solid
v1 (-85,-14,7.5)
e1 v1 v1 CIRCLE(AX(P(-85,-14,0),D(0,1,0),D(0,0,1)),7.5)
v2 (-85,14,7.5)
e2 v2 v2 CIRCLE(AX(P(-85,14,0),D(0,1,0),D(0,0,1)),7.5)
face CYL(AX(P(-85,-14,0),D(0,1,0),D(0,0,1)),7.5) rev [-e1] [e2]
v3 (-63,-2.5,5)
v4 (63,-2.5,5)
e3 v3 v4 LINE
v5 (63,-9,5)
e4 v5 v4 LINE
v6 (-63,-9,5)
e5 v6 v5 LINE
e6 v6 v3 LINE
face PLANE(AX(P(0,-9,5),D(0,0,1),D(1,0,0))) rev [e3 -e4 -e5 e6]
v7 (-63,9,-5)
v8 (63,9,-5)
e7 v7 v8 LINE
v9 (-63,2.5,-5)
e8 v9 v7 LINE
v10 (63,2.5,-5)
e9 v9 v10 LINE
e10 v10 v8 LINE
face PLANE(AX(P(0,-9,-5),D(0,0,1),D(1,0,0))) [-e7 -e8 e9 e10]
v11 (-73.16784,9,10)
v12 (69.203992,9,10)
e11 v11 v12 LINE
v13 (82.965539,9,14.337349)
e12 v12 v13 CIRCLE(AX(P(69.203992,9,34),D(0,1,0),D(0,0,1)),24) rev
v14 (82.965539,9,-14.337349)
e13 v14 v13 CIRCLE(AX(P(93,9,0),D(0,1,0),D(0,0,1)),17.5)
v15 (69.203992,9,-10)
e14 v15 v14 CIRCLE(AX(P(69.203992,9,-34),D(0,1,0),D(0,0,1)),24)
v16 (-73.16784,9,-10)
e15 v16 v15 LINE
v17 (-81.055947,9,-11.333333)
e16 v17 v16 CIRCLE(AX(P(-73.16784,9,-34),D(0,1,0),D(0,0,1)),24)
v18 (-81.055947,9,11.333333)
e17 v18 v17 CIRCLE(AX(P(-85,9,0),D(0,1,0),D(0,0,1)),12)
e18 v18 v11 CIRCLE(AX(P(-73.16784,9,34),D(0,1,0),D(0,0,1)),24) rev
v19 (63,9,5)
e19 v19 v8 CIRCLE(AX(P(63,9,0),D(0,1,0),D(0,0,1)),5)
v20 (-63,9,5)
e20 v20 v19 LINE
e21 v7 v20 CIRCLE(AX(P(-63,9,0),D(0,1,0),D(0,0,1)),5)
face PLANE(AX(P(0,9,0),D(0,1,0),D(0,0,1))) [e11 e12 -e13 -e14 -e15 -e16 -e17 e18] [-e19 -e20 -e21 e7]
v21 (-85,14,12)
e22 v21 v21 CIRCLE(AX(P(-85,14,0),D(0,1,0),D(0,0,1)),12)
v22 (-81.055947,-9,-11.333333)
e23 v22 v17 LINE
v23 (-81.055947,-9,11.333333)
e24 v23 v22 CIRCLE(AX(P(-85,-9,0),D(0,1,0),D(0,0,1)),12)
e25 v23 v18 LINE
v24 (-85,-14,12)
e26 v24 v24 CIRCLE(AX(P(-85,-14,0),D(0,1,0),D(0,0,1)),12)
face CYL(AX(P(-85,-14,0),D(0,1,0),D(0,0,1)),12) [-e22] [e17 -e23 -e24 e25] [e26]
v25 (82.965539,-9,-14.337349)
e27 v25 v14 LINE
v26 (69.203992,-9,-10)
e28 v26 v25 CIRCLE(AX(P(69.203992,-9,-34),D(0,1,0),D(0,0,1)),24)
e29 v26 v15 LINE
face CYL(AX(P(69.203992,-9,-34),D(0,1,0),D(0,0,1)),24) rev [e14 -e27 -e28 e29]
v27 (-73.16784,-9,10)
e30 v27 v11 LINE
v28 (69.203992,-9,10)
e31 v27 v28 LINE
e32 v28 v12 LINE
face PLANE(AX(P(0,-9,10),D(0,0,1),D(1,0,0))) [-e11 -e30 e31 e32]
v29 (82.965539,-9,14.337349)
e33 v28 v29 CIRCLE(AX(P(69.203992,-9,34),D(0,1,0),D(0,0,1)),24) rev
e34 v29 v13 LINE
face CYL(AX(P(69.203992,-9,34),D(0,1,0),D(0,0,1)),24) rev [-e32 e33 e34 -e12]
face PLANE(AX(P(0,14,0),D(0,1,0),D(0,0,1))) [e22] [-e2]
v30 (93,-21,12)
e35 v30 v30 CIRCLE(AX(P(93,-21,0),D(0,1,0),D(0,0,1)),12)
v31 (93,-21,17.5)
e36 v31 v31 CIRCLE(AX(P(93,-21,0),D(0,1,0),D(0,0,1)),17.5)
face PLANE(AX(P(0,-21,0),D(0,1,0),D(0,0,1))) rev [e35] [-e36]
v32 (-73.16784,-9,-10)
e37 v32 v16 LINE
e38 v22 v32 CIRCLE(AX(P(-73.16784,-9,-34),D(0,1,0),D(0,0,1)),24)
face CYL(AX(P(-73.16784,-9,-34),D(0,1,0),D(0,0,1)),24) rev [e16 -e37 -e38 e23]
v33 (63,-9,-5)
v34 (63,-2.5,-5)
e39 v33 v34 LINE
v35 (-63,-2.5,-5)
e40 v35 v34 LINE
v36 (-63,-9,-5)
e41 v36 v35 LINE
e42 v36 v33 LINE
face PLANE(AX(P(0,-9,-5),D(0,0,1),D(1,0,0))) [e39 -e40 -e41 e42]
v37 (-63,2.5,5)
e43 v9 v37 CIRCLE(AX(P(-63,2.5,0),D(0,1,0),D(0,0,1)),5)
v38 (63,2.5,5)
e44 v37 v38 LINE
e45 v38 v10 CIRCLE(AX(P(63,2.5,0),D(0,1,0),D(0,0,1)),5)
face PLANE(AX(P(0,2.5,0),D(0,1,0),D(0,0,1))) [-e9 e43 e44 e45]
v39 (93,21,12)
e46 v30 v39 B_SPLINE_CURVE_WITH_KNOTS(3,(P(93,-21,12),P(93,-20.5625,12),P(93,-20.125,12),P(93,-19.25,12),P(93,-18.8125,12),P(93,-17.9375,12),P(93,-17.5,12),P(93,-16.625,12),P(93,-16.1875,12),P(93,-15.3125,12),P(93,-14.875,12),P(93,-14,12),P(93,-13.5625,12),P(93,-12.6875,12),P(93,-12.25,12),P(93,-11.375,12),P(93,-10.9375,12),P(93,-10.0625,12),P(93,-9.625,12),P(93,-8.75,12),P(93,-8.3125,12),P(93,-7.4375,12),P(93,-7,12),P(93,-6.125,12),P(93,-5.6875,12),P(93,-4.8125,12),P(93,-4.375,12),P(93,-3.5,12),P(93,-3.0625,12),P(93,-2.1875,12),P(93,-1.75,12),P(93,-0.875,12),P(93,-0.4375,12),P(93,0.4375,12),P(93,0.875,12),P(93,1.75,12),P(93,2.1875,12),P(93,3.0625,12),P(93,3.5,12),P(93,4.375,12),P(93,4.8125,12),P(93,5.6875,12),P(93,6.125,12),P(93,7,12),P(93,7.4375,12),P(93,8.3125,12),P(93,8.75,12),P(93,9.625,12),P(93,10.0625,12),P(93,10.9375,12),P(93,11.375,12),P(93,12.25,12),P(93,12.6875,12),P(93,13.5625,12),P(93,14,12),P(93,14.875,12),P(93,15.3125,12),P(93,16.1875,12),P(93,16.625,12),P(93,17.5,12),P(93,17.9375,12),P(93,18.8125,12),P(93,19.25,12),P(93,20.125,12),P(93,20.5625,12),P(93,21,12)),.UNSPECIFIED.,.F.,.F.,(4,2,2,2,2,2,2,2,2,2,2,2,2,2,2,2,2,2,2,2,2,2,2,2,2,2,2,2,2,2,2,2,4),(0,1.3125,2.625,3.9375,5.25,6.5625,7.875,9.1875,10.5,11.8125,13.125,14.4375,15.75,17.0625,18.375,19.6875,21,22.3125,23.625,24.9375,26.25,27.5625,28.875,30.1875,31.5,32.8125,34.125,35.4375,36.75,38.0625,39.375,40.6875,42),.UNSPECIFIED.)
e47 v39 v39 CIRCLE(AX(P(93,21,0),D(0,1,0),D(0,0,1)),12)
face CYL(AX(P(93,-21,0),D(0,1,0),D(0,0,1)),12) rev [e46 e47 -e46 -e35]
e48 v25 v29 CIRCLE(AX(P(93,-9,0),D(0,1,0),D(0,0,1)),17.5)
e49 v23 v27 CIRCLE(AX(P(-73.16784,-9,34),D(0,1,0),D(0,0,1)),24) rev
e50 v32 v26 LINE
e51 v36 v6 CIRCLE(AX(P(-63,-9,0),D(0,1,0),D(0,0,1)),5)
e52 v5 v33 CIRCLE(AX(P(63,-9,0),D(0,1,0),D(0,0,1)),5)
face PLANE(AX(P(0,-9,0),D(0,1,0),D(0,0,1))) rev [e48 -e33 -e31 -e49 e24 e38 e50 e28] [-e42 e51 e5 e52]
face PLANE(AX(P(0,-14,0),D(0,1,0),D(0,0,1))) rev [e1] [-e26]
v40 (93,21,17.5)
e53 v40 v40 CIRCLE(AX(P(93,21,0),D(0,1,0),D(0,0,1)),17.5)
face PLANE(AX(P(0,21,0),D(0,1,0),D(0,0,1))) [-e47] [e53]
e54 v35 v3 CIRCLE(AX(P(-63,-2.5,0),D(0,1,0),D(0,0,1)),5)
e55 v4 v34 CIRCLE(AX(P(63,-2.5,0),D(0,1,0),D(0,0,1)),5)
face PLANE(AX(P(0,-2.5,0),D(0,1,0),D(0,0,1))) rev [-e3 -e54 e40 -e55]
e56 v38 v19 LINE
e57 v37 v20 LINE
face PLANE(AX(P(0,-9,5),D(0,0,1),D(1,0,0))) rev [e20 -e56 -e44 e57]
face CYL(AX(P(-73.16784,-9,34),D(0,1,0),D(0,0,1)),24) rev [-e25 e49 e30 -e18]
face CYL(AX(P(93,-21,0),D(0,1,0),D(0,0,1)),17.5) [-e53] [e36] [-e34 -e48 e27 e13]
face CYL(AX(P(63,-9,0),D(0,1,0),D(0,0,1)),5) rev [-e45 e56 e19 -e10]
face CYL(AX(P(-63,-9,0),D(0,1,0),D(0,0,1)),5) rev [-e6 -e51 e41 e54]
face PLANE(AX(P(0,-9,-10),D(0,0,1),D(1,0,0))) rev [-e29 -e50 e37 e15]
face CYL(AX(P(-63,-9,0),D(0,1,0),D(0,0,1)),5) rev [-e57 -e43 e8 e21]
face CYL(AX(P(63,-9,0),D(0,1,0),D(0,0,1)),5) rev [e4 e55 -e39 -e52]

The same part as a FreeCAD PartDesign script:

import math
import FreeCAD as App
import Part
import Sketcher

V = App.Vector

doc = App.newDocument("Part")
params = doc.addObject("Spreadsheet::Sheet", "Params")
for row, (alias, value) in enumerate([
    ("sketch1_diameter", "35 mm"),
    ("sketch1_diameter2", "24 mm"),
    ("pad1_length", "21 mm"),
    ("pad1_length2", "21 mm"),
    ("sketch2_radius", "24 mm"),
    ("sketch2_radius2", "12 mm"),
    ("sketch2_radius3", "5 mm"),
    ("sketch2_radius4", "17.5 mm"),
    ("sketch2_width", "126 mm"),
    ("pad2_length", "9 mm"),
    ("pad2_length2", "9 mm"),
    ("sketch3_diameter", "24 mm"),
    ("sketch3_diameter2", "15 mm"),
    ("pad3_length", "14 mm"),
    ("pad3_length2", "14 mm"),
    ("sketch4_radius", "5 mm"),
    ("sketch4_width", "126 mm"),
    ("pad4_length", "2.5 mm"),
    ("pad4_length2", "2.5 mm"),
], start=1):
    params.set(f"A{row}", alias)
    params.set(f"B{row}", "=" + value)
    params.setAlias(f"B{row}", alias)

body = doc.addObject("PartDesign::Body", "Body")

# Sketch on XZ plane
sketch1 = body.newObject("Sketcher::SketchObject", "Sketch")
sketch1.AttachmentSupport = (doc.getObject("XZ_Plane"), [""])
sketch1.MapMode = "FlatFace"
sketch1.addGeometry([
    Part.Circle(V(93, 0, 0), V(0, 0, 1), 17.5),
    Part.Circle(V(93, 0, 0), V(0, 0, 1), 12),
], False)
sketch1.addConstraint([
    Sketcher.Constraint("Coincident", 1, 3, 0, 3),
    Sketcher.Constraint("PointOnObject", 0, 3, -1),
    Sketcher.Constraint("Diameter", 0, 35.0),
    Sketcher.Constraint("Diameter", 1, 24.0),
    Sketcher.Constraint("DistanceX", -1, 1, 0, 3, 93.0),
])
sketch1.setExpression("Constraints[2]", "Params.sketch1_diameter")
sketch1.setExpression("Constraints[3]", "Params.sketch1_diameter2")
pad1 = body.newObject("PartDesign::Pad", "Pad")
pad1.Profile = sketch1
pad1.Type = "TwoLengths"
pad1.setExpression("Length", "Params.pad1_length")
pad1.setExpression("Length2", "Params.pad1_length2")
pad1.Reversed = True

# Sketch on XZ plane
sketch2 = body.newObject("Sketcher::SketchObject", "Sketch001")
sketch2.AttachmentSupport = (doc.getObject("XZ_Plane"), [""])
sketch2.MapMode = "FlatFace"
sketch2.addGeometry([
    Part.LineSegment(V(69.203992, -10, 0), V(-73.16784, -10, 0)),  # 0
    Part.ArcOfCircle(Part.Circle(V(-73.16784, -34, 0), V(0, 0, 1), 24), math.radians(90), math.radians(109.188136)),  # 1
    Part.ArcOfCircle(Part.Circle(V(-85, 0, 0), V(0, 0, 1), 12), math.radians(-70.811864), math.radians(0)),  # 2
    Part.ArcOfCircle(Part.Circle(V(-85, 0, 0), V(0, 0, 1), 12), math.radians(0), math.radians(70.811864)),  # 3
    Part.ArcOfCircle(Part.Circle(V(-73.16784, 34, 0), V(0, 0, 1), 24), math.radians(-109.188136), math.radians(-90)),  # 4
    Part.LineSegment(V(-73.16784, 10, 0), V(69.203992, 10, 0)),  # 5
    Part.ArcOfCircle(Part.Circle(V(69.203992, 34, 0), V(0, 0, 1), 24), math.radians(-90), math.radians(-55.012495)),  # 6
    Part.ArcOfCircle(Part.Circle(V(93, 0, 0), V(0, 0, 1), 17.5), math.radians(124.987505), math.radians(235.012495)),  # 7
    Part.ArcOfCircle(Part.Circle(V(69.203992, -34, 0), V(0, 0, 1), 24), math.radians(55.012495), math.radians(90)),  # 8
    Part.ArcOfCircle(Part.Circle(V(63, 0, 0), V(0, 0, 1), 5), math.radians(-90), math.radians(90)),  # 9
    Part.LineSegment(V(63, 5, 0), V(-63, 5, 0)),  # 10
    Part.ArcOfCircle(Part.Circle(V(-63, 0, 0), V(0, 0, 1), 5), math.radians(90), math.radians(270)),  # 11
    Part.LineSegment(V(-63, -5, 0), V(63, -5, 0)),  # 12
], False)
sketch2.addConstraint([
    Sketcher.Constraint("Tangent", 0, 2, 1, 1),
    Sketcher.Constraint("Tangent", 1, 2, 2, 1),
    Sketcher.Constraint("Tangent", 2, 2, 3, 1),
    Sketcher.Constraint("Tangent", 3, 2, 4, 1),
    Sketcher.Constraint("Tangent", 4, 2, 5, 1),
    Sketcher.Constraint("Tangent", 5, 2, 6, 1),
    Sketcher.Constraint("Tangent", 6, 2, 7, 1),
    Sketcher.Constraint("Tangent", 7, 2, 8, 1),
    Sketcher.Constraint("Tangent", 8, 2, 0, 1),
    Sketcher.Constraint("Tangent", 9, 2, 10, 1),
    Sketcher.Constraint("Tangent", 10, 2, 11, 1),
    Sketcher.Constraint("Tangent", 11, 2, 12, 1),
    Sketcher.Constraint("Tangent", 12, 2, 9, 1),
    Sketcher.Constraint("Horizontal", 0),
    Sketcher.Constraint("Horizontal", 5),
    Sketcher.Constraint("Horizontal", 10),
    Sketcher.Constraint("Horizontal", 12),
    Sketcher.Constraint("Equal", 2, 3),
    Sketcher.Constraint("Equal", 1, 4),
    Sketcher.Constraint("Equal", 4, 6),
    Sketcher.Constraint("Equal", 6, 8),
    Sketcher.Constraint("Symmetric", 9, 3, 11, 3, -1, 1),
    Sketcher.Constraint("Symmetric", 1, 3, 4, 3, -1),
    Sketcher.Constraint("PointOnObject", 7, 3, -1),
    Sketcher.Constraint("PointOnObject", 2, 2, -1),
    Sketcher.Constraint("Radius", 1, 24.0),
    Sketcher.Constraint("Radius", 2, 12.0),
    Sketcher.Constraint("Radius", 9, 5.0),
    Sketcher.Constraint("Radius", 7, 17.5),
    Sketcher.Constraint("DistanceX", 10, 2, 10, 1, 126.0),
    Sketcher.Constraint("DistanceY", 1, 3, -1, 1, 34.0),
    Sketcher.Constraint("DistanceX", 2, 3, -1, 1, 85.0),
    Sketcher.Constraint("DistanceX", -1, 1, 7, 3, 93.0),
])
sketch2.setExpression("Constraints[25]", "Params.sketch2_radius")
sketch2.setExpression("Constraints[26]", "Params.sketch2_radius2")
sketch2.setExpression("Constraints[27]", "Params.sketch2_radius3")
sketch2.setExpression("Constraints[28]", "Params.sketch2_radius4")
sketch2.setExpression("Constraints[29]", "Params.sketch2_width")
pad2 = body.newObject("PartDesign::Pad", "Pad001")
pad2.Profile = sketch2
pad2.Type = "TwoLengths"
pad2.setExpression("Length", "Params.pad2_length")
pad2.setExpression("Length2", "Params.pad2_length2")
pad2.Reversed = True

# Sketch on XZ plane
sketch3 = body.newObject("Sketcher::SketchObject", "Sketch002")
sketch3.AttachmentSupport = (doc.getObject("XZ_Plane"), [""])
sketch3.MapMode = "FlatFace"
sketch3.addGeometry([
    Part.Circle(V(-85, 0, 0), V(0, 0, 1), 12),
    Part.Circle(V(-85, 0, 0), V(0, 0, 1), 7.5),
], False)
sketch3.addConstraint([
    Sketcher.Constraint("Coincident", 1, 3, 0, 3),
    Sketcher.Constraint("PointOnObject", 0, 3, -1),
    Sketcher.Constraint("Diameter", 0, 24.0),
    Sketcher.Constraint("Diameter", 1, 15.0),
    Sketcher.Constraint("DistanceX", 0, 3, -1, 1, 85.0),
])
sketch3.setExpression("Constraints[2]", "Params.sketch3_diameter")
sketch3.setExpression("Constraints[3]", "Params.sketch3_diameter2")
pad3 = body.newObject("PartDesign::Pad", "Pad002")
pad3.Profile = sketch3
pad3.Type = "TwoLengths"
pad3.setExpression("Length", "Params.pad3_length")
pad3.setExpression("Length2", "Params.pad3_length2")
pad3.Reversed = True

# Sketch on XZ plane
sketch4 = body.newObject("Sketcher::SketchObject", "Sketch003")
sketch4.AttachmentSupport = (doc.getObject("XZ_Plane"), [""])
sketch4.MapMode = "FlatFace"
sketch4.addGeometry([
    Part.ArcOfCircle(Part.Circle(V(-63, 0, 0), V(0, 0, 1), 5), math.radians(90), math.radians(270)),
    Part.LineSegment(V(-63, 5, 0), V(63, 5, 0)),
    Part.ArcOfCircle(Part.Circle(V(63, 0, 0), V(0, 0, 1), 5), math.radians(-90), math.radians(90)),
    Part.LineSegment(V(63, -5, 0), V(-63, -5, 0)),
], False)
sketch4.addConstraint([
    Sketcher.Constraint("Tangent", 0, 1, 1, 1),
    Sketcher.Constraint("Tangent", 1, 2, 2, 2),
    Sketcher.Constraint("Tangent", 2, 1, 3, 1),
    Sketcher.Constraint("Tangent", 3, 2, 0, 2),
    Sketcher.Constraint("Horizontal", 1),
    Sketcher.Constraint("Horizontal", 3),
    Sketcher.Constraint("Symmetric", 0, 3, 2, 3, -1, 1),
    Sketcher.Constraint("Radius", 0, 5.0),
    Sketcher.Constraint("DistanceX", 1, 1, 1, 2, 126.0),
])
sketch4.setExpression("Constraints[7]", "Params.sketch4_radius")
sketch4.setExpression("Constraints[8]", "Params.sketch4_width")
pad4 = body.newObject("PartDesign::Pad", "Pad003")
pad4.Profile = sketch4
pad4.Type = "TwoLengths"
pad4.setExpression("Length", "Params.pad4_length")
pad4.setExpression("Length2", "Params.pad4_length2")
pad4.Reversed = True

doc.recompute()
